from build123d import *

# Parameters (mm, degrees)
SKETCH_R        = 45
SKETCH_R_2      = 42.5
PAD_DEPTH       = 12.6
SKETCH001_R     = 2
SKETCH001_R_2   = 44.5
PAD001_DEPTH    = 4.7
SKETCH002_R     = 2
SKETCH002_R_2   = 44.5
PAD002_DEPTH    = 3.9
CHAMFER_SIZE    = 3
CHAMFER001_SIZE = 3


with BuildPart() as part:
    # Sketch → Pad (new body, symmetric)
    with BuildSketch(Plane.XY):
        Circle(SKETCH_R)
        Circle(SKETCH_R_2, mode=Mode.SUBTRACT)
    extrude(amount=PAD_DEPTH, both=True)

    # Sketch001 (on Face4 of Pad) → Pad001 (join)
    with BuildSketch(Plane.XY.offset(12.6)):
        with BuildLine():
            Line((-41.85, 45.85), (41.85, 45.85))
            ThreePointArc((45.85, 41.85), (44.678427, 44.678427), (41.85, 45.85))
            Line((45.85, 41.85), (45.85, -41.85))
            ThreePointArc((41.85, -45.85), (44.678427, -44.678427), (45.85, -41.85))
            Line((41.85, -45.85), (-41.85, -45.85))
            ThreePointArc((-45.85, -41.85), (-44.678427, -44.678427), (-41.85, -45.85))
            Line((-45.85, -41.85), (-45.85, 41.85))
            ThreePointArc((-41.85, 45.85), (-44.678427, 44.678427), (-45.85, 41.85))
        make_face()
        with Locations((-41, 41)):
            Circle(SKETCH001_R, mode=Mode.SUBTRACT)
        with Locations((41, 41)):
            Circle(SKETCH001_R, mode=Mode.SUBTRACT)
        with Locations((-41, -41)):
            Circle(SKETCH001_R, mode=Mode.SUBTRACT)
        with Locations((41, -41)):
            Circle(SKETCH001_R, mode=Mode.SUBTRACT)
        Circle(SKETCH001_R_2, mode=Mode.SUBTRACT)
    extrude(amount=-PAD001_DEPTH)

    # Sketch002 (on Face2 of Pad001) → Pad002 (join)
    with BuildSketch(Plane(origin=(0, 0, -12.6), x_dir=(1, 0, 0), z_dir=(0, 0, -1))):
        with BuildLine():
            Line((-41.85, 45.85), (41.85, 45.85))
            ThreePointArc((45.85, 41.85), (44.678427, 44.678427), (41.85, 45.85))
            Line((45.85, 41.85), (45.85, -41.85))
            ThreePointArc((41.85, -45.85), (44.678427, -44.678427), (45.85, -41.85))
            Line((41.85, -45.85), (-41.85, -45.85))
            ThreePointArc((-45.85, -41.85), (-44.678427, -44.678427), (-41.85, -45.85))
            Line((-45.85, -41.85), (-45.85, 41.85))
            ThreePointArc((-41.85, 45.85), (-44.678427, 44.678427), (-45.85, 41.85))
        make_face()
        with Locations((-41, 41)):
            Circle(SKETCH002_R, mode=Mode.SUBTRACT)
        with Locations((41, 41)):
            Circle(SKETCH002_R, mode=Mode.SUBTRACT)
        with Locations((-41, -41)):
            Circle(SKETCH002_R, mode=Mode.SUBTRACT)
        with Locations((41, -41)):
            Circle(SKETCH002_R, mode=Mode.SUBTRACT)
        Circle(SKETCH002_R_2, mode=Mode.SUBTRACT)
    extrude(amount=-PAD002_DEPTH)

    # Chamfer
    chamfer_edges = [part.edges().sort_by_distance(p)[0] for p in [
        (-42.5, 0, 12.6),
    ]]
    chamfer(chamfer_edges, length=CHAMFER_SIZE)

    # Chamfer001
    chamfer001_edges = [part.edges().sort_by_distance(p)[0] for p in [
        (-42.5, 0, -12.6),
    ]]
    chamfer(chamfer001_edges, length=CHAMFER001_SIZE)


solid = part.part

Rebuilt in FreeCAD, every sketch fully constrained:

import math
import FreeCAD as App
import Part
import Sketcher

V = App.Vector


def edges_at(feature, points):
    """Names of the edges that pass closest to the given points."""
    edges = feature.Shape.Edges
    near = lambda p: min(range(len(edges)), key=lambda i: edges[i].distToShape(Part.Vertex(*p))[0])
    return sorted({f"Edge{near(p) + 1}" for p in points})

doc = App.newDocument("Part")
body = doc.addObject("PartDesign::Body", "Body")

# Sketch on XY plane
sketch1 = doc.addObject("Sketcher::SketchObject", "Sketch")
body.addObject(sketch1)
sketch1.AttachmentSupport = (doc.XY_Plane, [""])
sketch1.MapMode = "FlatFace"
sketch1.addGeometry([
    Part.Circle(V(0, 0, 0), V(0, 0, 1), 45),
    Part.Circle(V(0, 0, 0), V(0, 0, 1), 42),
], False)
sketch1.addConstraint([
    Sketcher.Constraint("Coincident", 0, 3, -1, 1),
    Sketcher.Constraint("Coincident", 1, 3, -1, 1),
    Sketcher.Constraint("Diameter", 0, 90.0),
    Sketcher.Constraint("Diameter", 1, 85.0),
])
pad1 = doc.addObject("PartDesign::Pad", "Pad")
body.addObject(pad1)
pad1.Profile = sketch1
pad1.Length = 25.2
pad1.Midplane = True

# Sketch on XY plane
sketch2 = doc.addObject("Sketcher::SketchObject", "Sketch001")
body.addObject(sketch2)
sketch2.AttachmentSupport = (doc.XY_Plane, [""])
sketch2.MapMode = "FlatFace"
sketch2.AttachmentOffset = App.Placement(V(0, 0, 12.6), App.Rotation())
sketch2.addGeometry([
    Part.LineSegment(V(41.9, 45.9, 0), V(-41.9, 45.9, 0)),  # 0
    Part.ArcOfCircle(Part.Circle(V(-41.8, 41.8, 0), V(0, 0, 1), 4), math.radians(90), math.radians(180)),  # 1
    Part.LineSegment(V(-45.9, 41.9, 0), V(-45.9, -41.9, 0)),  # 2
    Part.ArcOfCircle(Part.Circle(V(-41.8, -41.8, 0), V(0, 0, 1), 4), math.radians(-180), math.radians(-90)),  # 3
    Part.LineSegment(V(-41.9, -45.9, 0), V(41.9, -45.9, 0)),  # 4
    Part.ArcOfCircle(Part.Circle(V(41.8, -41.8, 0), V(0, 0, 1), 4), math.radians(-90), math.radians(0)),  # 5
    Part.LineSegment(V(45.9, -41.9, 0), V(45.9, 41.9, 0)),  # 6
    Part.ArcOfCircle(Part.Circle(V(41.8, 41.8, 0), V(0, 0, 1), 4), math.radians(0), math.radians(90)),  # 7
    Part.Circle(V(41, -41, 0), V(0, 0, 1), 2),  # 8
    Part.Circle(V(-41, -41, 0), V(0, 0, 1), 2),  # 9
    Part.Circle(V(41, 41, 0), V(0, 0, 1), 2),  # 10
    Part.Circle(V(0, 0, 0), V(0, 0, 1), 44.5),  # 11
    Part.Circle(V(-41, 41, 0), V(0, 0, 1), 2),  # 12
], False)
sketch2.addConstraint([
    Sketcher.Constraint("Tangent", 0, 2, 1, 1),
    Sketcher.Constraint("Tangent", 1, 2, 2, 1),
    Sketcher.Constraint("Tangent", 2, 2, 3, 1),
    Sketcher.Constraint("Tangent", 3, 2, 4, 1),
    Sketcher.Constraint("Tangent", 4, 2, 5, 1),
    Sketcher.Constraint("Tangent", 5, 2, 6, 1),
    Sketcher.Constraint("Tangent", 6, 2, 7, 1),
    Sketcher.Constraint("Tangent", 7, 2, 0, 1),
    Sketcher.Constraint("Horizontal", 0),
    Sketcher.Constraint("Vertical", 2),
    Sketcher.Constraint("Horizontal", 4),
    Sketcher.Constraint("Vertical", 6),
    Sketcher.Constraint("Coincident", 11, 3, -1, 1),
    Sketcher.Constraint("Equal", 1, 3),
    Sketcher.Constraint("Equal", 3, 5),
    Sketcher.Constraint("Equal", 5, 7),
    Sketcher.Constraint("Equal", 8, 9),
    Sketcher.Constraint("Equal", 9, 10),
    Sketcher.Constraint("Equal", 10, 12),
    Sketcher.Constraint("Symmetric", 1, 3, 5, 3, -1, 1),
    Sketcher.Constraint("Symmetric", 9, 3, 10, 3, -1, 1),
    Sketcher.Constraint("Symmetric", 8, 3, 12, 3, -1, 1),
    Sketcher.Constraint("Symmetric", 8, 3, 9, 3, -2),
    Sketcher.Constraint("Equal", 4, 2),
    Sketcher.Constraint("Diameter", 8, 4.0),
    Sketcher.Constraint("Diameter", 11, 89.0),
    Sketcher.Constraint("Radius", 1, 4.0),
    Sketcher.Constraint("DistanceX", 0, 2, 0, 1, 83.7),
    Sketcher.Constraint("DistanceX", -1, 1, 8, 3, 41.0),
    Sketcher.Constraint("DistanceY", 8, 3, -1, 1, 41.0),
])
pad2 = doc.addObject("PartDesign::Pad", "Pad001")
body.addObject(pad2)
pad2.Profile = sketch2
pad2.Length = 4.7
pad2.Reversed = True

# Sketch on XY plane
sketch3 = doc.addObject("Sketcher::SketchObject", "Sketch002")
body.addObject(sketch3)
sketch3.AttachmentSupport = (doc.XY_Plane, [""])
sketch3.MapMode = "FlatFace"
sketch3.AttachmentOffset = App.Placement(V(0, 0, -12.6), App.Rotation())
sketch3.addGeometry([
    Part.LineSegment(V(41.9, -45.9, 0), V(-41.9, -45.9, 0)),  # 0
    Part.ArcOfCircle(Part.Circle(V(-41.8, -41.8, 0), V(0, 0, 1), 4), math.radians(-180), math.radians(-90)),  # 1
    Part.LineSegment(V(-45.9, -41.9, 0), V(-45.9, 41.9, 0)),  # 2
    Part.ArcOfCircle(Part.Circle(V(-41.8, 41.8, 0), V(0, 0, 1), 4), math.radians(90), math.radians(180)),  # 3
    Part.LineSegment(V(-41.9, 45.9, 0), V(41.9, 45.9, 0)),  # 4
    Part.ArcOfCircle(Part.Circle(V(41.8, 41.8, 0), V(0, 0, 1), 4), math.radians(0), math.radians(90)),  # 5
    Part.LineSegment(V(45.9, 41.9, 0), V(45.9, -41.9, 0)),  # 6
    Part.ArcOfCircle(Part.Circle(V(41.8, -41.8, 0), V(0, 0, 1), 4), math.radians(-90), math.radians(0)),  # 7
    Part.Circle(V(41, 41, 0), V(0, 0, 1), 2),  # 8
    Part.Circle(V(-41, 41, 0), V(0, 0, 1), 2),  # 9
    Part.Circle(V(41, -41, 0), V(0, 0, 1), 2),  # 10
    Part.Circle(V(0, 0, 0), V(0, 0, 1), 44.5),  # 11
    Part.Circle(V(-41, -41, 0), V(0, 0, 1), 2),  # 12
], False)
sketch3.addConstraint([
    Sketcher.Constraint("Tangent", 0, 2, 1, 2),
    Sketcher.Constraint("Tangent", 1, 1, 2, 1),
    Sketcher.Constraint("Tangent", 2, 2, 3, 2),
    Sketcher.Constraint("Tangent", 3, 1, 4, 1),
    Sketcher.Constraint("Tangent", 4, 2, 5, 2),
    Sketcher.Constraint("Tangent", 5, 1, 6, 1),
    Sketcher.Constraint("Tangent", 6, 2, 7, 2),
    Sketcher.Constraint("Tangent", 7, 1, 0, 1),
    Sketcher.Constraint("Horizontal", 0),
    Sketcher.Constraint("Vertical", 2),
    Sketcher.Constraint("Horizontal", 4),
    Sketcher.Constraint("Vertical", 6),
    Sketcher.Constraint("Coincident", 11, 3, -1, 1),
    Sketcher.Constraint("Equal", 1, 3),
    Sketcher.Constraint("Equal", 3, 5),
    Sketcher.Constraint("Equal", 5, 7),
    Sketcher.Constraint("Equal", 8, 9),
    Sketcher.Constraint("Equal", 9, 10),
    Sketcher.Constraint("Equal", 10, 12),
    Sketcher.Constraint("Symmetric", 1, 3, 5, 3, -1, 1),
    Sketcher.Constraint("Symmetric", 9, 3, 10, 3, -1, 1),
    Sketcher.Constraint("Symmetric", 8, 3, 12, 3, -1, 1),
    Sketcher.Constraint("Symmetric", 8, 3, 9, 3, -2),
    Sketcher.Constraint("Equal", 4, 2),
    Sketcher.Constraint("Diameter", 8, 4.0),
    Sketcher.Constraint("Diameter", 11, 89.0),
    Sketcher.Constraint("Radius", 1, 4.0),
    Sketcher.Constraint("DistanceX", 0, 2, 0, 1, 83.7),
    Sketcher.Constraint("DistanceX", -1, 1, 8, 3, 41.0),
    Sketcher.Constraint("DistanceY", -1, 1, 8, 3, 41.0),
])
pad3 = doc.addObject("PartDesign::Pad", "Pad002")
body.addObject(pad3)
pad3.Profile = sketch3
pad3.Length = 3.9
doc.recompute()

chamfer = doc.addObject("PartDesign::Chamfer", "Chamfer")
body.addObject(chamfer)
chamfer.Base = (pad3, edges_at(pad3, [(-42.5, 0, 12.6)]))
chamfer.Size = 3
doc.recompute()

chamfer2 = doc.addObject("PartDesign::Chamfer", "Chamfer001")
body.addObject(chamfer2)
chamfer2.Base = (chamfer, edges_at(chamfer, [(-42.5, 0, -12.6)]))
chamfer2.Size = 3

doc.recompute()
